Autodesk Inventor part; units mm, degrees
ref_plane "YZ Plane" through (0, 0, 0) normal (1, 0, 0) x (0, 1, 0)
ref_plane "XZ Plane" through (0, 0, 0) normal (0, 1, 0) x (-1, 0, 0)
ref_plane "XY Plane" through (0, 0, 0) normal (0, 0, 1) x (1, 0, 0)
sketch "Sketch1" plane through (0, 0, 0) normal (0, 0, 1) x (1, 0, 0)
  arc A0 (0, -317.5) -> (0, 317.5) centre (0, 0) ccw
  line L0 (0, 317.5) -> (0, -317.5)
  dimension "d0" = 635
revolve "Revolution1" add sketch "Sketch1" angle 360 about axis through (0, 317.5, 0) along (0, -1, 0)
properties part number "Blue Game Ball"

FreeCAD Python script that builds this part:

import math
import FreeCAD as App
import Part
import Sketcher
from FreeCAD import Vector
Q = App.Units.Quantity

doc = App.newDocument("Part")
body = doc.addObject("PartDesign::Body", "Body")

sketch1 = body.newObject("Sketcher::SketchObject", "Sketch")
sketch1.AttachmentSupport = (doc.getObject("XY_Plane"), [""])
sketch1.MapMode = "FlatFace"
sketch1.addGeometry(Part.LineSegment(Vector(0, 318, 0), Vector(0, -318, 0)), False)
sketch1.addGeometry(Part.ArcOfCircle(Part.Circle(Vector(0, 0, 0), Vector(0, 0, 1), 318), math.radians(-90), math.radians(90)), False)
sketch1.addConstraint(Sketcher.Constraint("Coincident", 0, 1, 1, 2))
sketch1.addConstraint(Sketcher.Constraint("Coincident", 1, 1, 0, 2))
sketch1.addConstraint(Sketcher.Constraint("Vertical", 0))
sketch1.addConstraint(Sketcher.Constraint("Coincident", 1, 3, -1, 1))
sketch1.addConstraint(Sketcher.Constraint("PointOnObject", 0, 1, -2))
sketch1.addConstraint(Sketcher.Constraint("Radius", 1, Q("12.5 in")))
revolution = body.newObject("PartDesign::Revolution", "Revolution")
revolution.Profile = sketch1
revolution.ReferenceAxis = (sketch1, ["V_Axis"])
revolution.Angle = 360

doc.recompute()
